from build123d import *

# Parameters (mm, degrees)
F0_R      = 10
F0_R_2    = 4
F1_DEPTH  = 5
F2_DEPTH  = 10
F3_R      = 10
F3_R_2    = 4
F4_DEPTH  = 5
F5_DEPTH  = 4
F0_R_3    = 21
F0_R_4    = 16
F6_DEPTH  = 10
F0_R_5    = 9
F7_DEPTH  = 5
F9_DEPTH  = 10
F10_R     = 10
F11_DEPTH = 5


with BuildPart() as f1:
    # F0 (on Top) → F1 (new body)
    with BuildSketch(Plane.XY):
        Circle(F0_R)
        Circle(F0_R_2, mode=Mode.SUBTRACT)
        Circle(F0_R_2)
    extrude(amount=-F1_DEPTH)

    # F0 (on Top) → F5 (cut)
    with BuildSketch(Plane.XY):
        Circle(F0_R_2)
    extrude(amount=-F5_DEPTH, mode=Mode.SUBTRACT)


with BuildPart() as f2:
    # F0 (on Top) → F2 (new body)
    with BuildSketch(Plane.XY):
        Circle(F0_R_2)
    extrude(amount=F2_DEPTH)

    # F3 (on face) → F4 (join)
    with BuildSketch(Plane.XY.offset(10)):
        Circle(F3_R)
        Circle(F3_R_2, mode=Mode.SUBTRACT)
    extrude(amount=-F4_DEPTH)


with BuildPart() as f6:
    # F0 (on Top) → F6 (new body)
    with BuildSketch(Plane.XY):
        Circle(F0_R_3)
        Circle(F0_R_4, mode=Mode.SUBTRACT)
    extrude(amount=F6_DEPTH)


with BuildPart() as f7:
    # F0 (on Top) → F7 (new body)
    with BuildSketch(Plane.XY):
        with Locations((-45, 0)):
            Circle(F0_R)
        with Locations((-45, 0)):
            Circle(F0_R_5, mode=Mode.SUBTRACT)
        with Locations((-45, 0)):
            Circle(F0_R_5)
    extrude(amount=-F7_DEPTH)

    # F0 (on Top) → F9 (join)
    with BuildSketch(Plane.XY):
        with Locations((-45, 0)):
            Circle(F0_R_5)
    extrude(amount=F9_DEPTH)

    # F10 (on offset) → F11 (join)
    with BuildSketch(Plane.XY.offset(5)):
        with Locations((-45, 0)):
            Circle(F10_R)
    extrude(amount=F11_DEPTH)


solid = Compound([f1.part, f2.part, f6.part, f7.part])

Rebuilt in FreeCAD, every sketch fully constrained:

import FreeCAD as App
import Part
import Sketcher

V = App.Vector

doc = App.newDocument("Part")
body = doc.addObject("PartDesign::Body", "Body")

sketch1 = doc.addObject("Sketcher::SketchObject", "Sketch")
body.addObject(sketch1)
sketch1.AttachmentSupport = (doc.XY_Plane, [""])
sketch1.MapMode = "FlatFace"
sketch1.addGeometry(Part.Circle(V(0, 0, 0), V(0, 0, 1), 10), False)
sketch1.addConstraint([
    Sketcher.Constraint("Coincident", 0, 3, -1, 1),
    Sketcher.Constraint("Diameter", 0, 20.0),
])
pad1 = doc.addObject("PartDesign::Pad", "Pad")
body.addObject(pad1)
pad1.Profile = sketch1
pad1.Length = 5
pad1.Reversed = True

sketch2 = doc.addObject("Sketcher::SketchObject", "Sketch001")
body.addObject(sketch2)
sketch2.AttachmentSupport = (doc.XY_Plane, [""])
sketch2.MapMode = "FlatFace"
sketch2.addGeometry(Part.Circle(V(0, 0, 0), V(0, 0, 1), 4), False)
sketch2.addConstraint([
    Sketcher.Constraint("Coincident", 0, 3, -1, 1),
    Sketcher.Constraint("Diameter", 0, 8.0),
])
pocket1 = doc.addObject("PartDesign::Pocket", "Pocket")
body.addObject(pocket1)
pocket1.Profile = sketch2
pocket1.Length = 4
body2 = doc.addObject("PartDesign::Body", "Body001")

sketch3 = doc.addObject("Sketcher::SketchObject", "Sketch002")
body2.addObject(sketch3)
sketch3.AttachmentSupport = (doc.getObject("XY_Plane001"), [""])
sketch3.MapMode = "FlatFace"
sketch3.addGeometry(Part.Circle(V(0, 0, 0), V(0, 0, 1), 4), False)
sketch3.addConstraint([
    Sketcher.Constraint("Coincident", 0, 3, -1, 1),
    Sketcher.Constraint("Diameter", 0, 8.0),
])
pad2 = doc.addObject("PartDesign::Pad", "Pad001")
body2.addObject(pad2)
pad2.Profile = sketch3
pad2.Length = 10

sketch4 = doc.addObject("Sketcher::SketchObject", "Sketch003")
body2.addObject(sketch4)
sketch4.AttachmentSupport = (doc.getObject("XY_Plane001"), [""])
sketch4.MapMode = "FlatFace"
sketch4.AttachmentOffset = App.Placement(V(0, 0, 10), App.Rotation())
sketch4.addGeometry([
    Part.Circle(V(0, 0, 0), V(0, 0, 1), 10),
    Part.Circle(V(0, 0, 0), V(0, 0, 1), 4),
], False)
sketch4.addConstraint([
    Sketcher.Constraint("Coincident", 0, 3, -1, 1),
    Sketcher.Constraint("Coincident", 1, 3, -1, 1),
    Sketcher.Constraint("Diameter", 0, 20.0),
    Sketcher.Constraint("Diameter", 1, 8.0),
])
pad3 = doc.addObject("PartDesign::Pad", "Pad002")
body2.addObject(pad3)
pad3.Profile = sketch4
pad3.Length = 5
pad3.Reversed = True
body3 = doc.addObject("PartDesign::Body", "Body002")

sketch5 = doc.addObject("Sketcher::SketchObject", "Sketch004")
body3.addObject(sketch5)
sketch5.AttachmentSupport = (doc.getObject("XY_Plane002"), [""])
sketch5.MapMode = "FlatFace"
sketch5.addGeometry([
    Part.Circle(V(0, 0, 0), V(0, 0, 1), 21),
    Part.Circle(V(0, 0, 0), V(0, 0, 1), 16),
], False)
sketch5.addConstraint([
    Sketcher.Constraint("Coincident", 0, 3, -1, 1),
    Sketcher.Constraint("Coincident", 1, 3, -1, 1),
    Sketcher.Constraint("Diameter", 0, 42.0),
    Sketcher.Constraint("Diameter", 1, 32.0),
])
pad4 = doc.addObject("PartDesign::Pad", "Pad003")
body3.addObject(pad4)
pad4.Profile = sketch5
pad4.Length = 10
body4 = doc.addObject("PartDesign::Body", "Body003")

sketch6 = doc.addObject("Sketcher::SketchObject", "Sketch005")
body4.addObject(sketch6)
sketch6.AttachmentSupport = (doc.getObject("XY_Plane003"), [""])
sketch6.MapMode = "FlatFace"
sketch6.addGeometry(Part.Circle(V(-45, 0, 0), V(0, 0, 1), 10), False)
sketch6.addConstraint([
    Sketcher.Constraint("PointOnObject", 0, 3, -1),
    Sketcher.Constraint("Diameter", 0, 20.0),
    Sketcher.Constraint("DistanceX", 0, 3, -1, 1, 45.0),
])
pad5 = doc.addObject("PartDesign::Pad", "Pad004")
body4.addObject(pad5)
pad5.Profile = sketch6
pad5.Length = 5
pad5.Reversed = True

sketch7 = doc.addObject("Sketcher::SketchObject", "Sketch006")
body4.addObject(sketch7)
sketch7.AttachmentSupport = (doc.getObject("XY_Plane003"), [""])
sketch7.MapMode = "FlatFace"
sketch7.addGeometry(Part.Circle(V(-45, 0, 0), V(0, 0, 1), 9), False)
sketch7.addConstraint([
    Sketcher.Constraint("PointOnObject", 0, 3, -1),
    Sketcher.Constraint("Diameter", 0, 18.0),
    Sketcher.Constraint("DistanceX", 0, 3, -1, 1, 45.0),
])
pad6 = doc.addObject("PartDesign::Pad", "Pad005")
body4.addObject(pad6)
pad6.Profile = sketch7
pad6.Length = 10

sketch8 = doc.addObject("Sketcher::SketchObject", "Sketch007")
body4.addObject(sketch8)
sketch8.AttachmentSupport = (doc.getObject("XY_Plane003"), [""])
sketch8.MapMode = "FlatFace"
sketch8.AttachmentOffset = App.Placement(V(0, 0, 5), App.Rotation())
sketch8.addGeometry(Part.Circle(V(-45, 0, 0), V(0, 0, 1), 10), False)
sketch8.addConstraint([
    Sketcher.Constraint("PointOnObject", 0, 3, -1),
    Sketcher.Constraint("Diameter", 0, 20.0),
    Sketcher.Constraint("DistanceX", 0, 3, -1, 1, 45.0),
])
pad7 = doc.addObject("PartDesign::Pad", "Pad006")
body4.addObject(pad7)
pad7.Profile = sketch8
pad7.Length = 5

doc.recompute()
